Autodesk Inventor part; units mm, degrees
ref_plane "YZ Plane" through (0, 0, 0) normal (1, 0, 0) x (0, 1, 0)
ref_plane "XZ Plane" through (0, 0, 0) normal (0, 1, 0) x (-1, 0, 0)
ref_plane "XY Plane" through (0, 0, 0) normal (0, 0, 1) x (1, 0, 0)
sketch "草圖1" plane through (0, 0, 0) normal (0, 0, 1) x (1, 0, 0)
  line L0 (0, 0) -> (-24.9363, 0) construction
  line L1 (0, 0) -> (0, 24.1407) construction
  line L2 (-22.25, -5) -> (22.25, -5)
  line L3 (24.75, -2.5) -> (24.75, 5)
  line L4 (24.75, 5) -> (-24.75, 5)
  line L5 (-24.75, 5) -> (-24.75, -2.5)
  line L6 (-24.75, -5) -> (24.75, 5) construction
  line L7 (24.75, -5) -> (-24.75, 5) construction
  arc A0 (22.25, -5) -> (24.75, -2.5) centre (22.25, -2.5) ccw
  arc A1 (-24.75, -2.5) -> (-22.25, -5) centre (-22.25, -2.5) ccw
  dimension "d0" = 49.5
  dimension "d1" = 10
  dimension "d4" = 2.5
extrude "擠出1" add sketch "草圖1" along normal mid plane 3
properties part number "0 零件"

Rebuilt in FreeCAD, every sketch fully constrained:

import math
import FreeCAD as App
import Part
import Sketcher
from FreeCAD import Vector

doc = App.newDocument("Part")
body = doc.addObject("PartDesign::Body", "Body")

# Sketch on XY plane
sketch1 = body.newObject("Sketcher::SketchObject", "Sketch")
sketch1.AttachmentSupport = (doc.getObject("XY_Plane"), [""])
sketch1.MapMode = "FlatFace"
sketch1.addGeometry(Part.ArcOfCircle(Part.Circle(Vector(-22.2, -2.5, 0), Vector(0, 0, 1), 2.5), math.radians(180), math.radians(270)), False)
sketch1.addGeometry(Part.LineSegment(Vector(-22.2, -5, 0), Vector(22.2, -5, 0)), False)
sketch1.addGeometry(Part.ArcOfCircle(Part.Circle(Vector(22.2, -2.5, 0), Vector(0, 0, 1), 2.5), math.radians(-90), math.radians(0)), False)
sketch1.addGeometry(Part.LineSegment(Vector(24.8, -2.5, 0), Vector(24.8, 5, 0)), False)
sketch1.addGeometry(Part.LineSegment(Vector(24.8, 5, 0), Vector(-24.8, 5, 0)), False)
sketch1.addGeometry(Part.LineSegment(Vector(-24.8, 5, 0), Vector(-24.8, -2.5, 0)), False)
sketch1.addConstraint(Sketcher.Constraint("Tangent", 0, 2, 1, 1))
sketch1.addConstraint(Sketcher.Constraint("Tangent", 1, 2, 2, 1))
sketch1.addConstraint(Sketcher.Constraint("Tangent", 2, 2, 3, 1))
sketch1.addConstraint(Sketcher.Constraint("Coincident", 3, 2, 4, 1))
sketch1.addConstraint(Sketcher.Constraint("Coincident", 4, 2, 5, 1))
sketch1.addConstraint(Sketcher.Constraint("Tangent", 5, 2, 0, 1))
sketch1.addConstraint(Sketcher.Constraint("Horizontal", 1))
sketch1.addConstraint(Sketcher.Constraint("Vertical", 3))
sketch1.addConstraint(Sketcher.Constraint("Horizontal", 4))
sketch1.addConstraint(Sketcher.Constraint("Vertical", 5))
sketch1.addConstraint(Sketcher.Constraint("Equal", 0, 2))
sketch1.addConstraint(Sketcher.Constraint("Radius", 0, 2.5))
sketch1.addConstraint(Sketcher.Constraint("DistanceX", 4, 2, 4, 1, 49.5))
sketch1.addConstraint(Sketcher.Constraint("DistanceY", 1, 2, 3, 2, 10.0))
sketch1.addConstraint(Sketcher.Constraint("DistanceY", 0, 3, -1, 1, 2.5))
sketch1.addConstraint(Sketcher.Constraint("DistanceX", 0, 3, -1, 1, 22.25))
pad1 = body.newObject("PartDesign::Pad", "Pad")
pad1.Profile = sketch1
pad1.Length = 3
pad1.Midplane = True

doc.recompute()
